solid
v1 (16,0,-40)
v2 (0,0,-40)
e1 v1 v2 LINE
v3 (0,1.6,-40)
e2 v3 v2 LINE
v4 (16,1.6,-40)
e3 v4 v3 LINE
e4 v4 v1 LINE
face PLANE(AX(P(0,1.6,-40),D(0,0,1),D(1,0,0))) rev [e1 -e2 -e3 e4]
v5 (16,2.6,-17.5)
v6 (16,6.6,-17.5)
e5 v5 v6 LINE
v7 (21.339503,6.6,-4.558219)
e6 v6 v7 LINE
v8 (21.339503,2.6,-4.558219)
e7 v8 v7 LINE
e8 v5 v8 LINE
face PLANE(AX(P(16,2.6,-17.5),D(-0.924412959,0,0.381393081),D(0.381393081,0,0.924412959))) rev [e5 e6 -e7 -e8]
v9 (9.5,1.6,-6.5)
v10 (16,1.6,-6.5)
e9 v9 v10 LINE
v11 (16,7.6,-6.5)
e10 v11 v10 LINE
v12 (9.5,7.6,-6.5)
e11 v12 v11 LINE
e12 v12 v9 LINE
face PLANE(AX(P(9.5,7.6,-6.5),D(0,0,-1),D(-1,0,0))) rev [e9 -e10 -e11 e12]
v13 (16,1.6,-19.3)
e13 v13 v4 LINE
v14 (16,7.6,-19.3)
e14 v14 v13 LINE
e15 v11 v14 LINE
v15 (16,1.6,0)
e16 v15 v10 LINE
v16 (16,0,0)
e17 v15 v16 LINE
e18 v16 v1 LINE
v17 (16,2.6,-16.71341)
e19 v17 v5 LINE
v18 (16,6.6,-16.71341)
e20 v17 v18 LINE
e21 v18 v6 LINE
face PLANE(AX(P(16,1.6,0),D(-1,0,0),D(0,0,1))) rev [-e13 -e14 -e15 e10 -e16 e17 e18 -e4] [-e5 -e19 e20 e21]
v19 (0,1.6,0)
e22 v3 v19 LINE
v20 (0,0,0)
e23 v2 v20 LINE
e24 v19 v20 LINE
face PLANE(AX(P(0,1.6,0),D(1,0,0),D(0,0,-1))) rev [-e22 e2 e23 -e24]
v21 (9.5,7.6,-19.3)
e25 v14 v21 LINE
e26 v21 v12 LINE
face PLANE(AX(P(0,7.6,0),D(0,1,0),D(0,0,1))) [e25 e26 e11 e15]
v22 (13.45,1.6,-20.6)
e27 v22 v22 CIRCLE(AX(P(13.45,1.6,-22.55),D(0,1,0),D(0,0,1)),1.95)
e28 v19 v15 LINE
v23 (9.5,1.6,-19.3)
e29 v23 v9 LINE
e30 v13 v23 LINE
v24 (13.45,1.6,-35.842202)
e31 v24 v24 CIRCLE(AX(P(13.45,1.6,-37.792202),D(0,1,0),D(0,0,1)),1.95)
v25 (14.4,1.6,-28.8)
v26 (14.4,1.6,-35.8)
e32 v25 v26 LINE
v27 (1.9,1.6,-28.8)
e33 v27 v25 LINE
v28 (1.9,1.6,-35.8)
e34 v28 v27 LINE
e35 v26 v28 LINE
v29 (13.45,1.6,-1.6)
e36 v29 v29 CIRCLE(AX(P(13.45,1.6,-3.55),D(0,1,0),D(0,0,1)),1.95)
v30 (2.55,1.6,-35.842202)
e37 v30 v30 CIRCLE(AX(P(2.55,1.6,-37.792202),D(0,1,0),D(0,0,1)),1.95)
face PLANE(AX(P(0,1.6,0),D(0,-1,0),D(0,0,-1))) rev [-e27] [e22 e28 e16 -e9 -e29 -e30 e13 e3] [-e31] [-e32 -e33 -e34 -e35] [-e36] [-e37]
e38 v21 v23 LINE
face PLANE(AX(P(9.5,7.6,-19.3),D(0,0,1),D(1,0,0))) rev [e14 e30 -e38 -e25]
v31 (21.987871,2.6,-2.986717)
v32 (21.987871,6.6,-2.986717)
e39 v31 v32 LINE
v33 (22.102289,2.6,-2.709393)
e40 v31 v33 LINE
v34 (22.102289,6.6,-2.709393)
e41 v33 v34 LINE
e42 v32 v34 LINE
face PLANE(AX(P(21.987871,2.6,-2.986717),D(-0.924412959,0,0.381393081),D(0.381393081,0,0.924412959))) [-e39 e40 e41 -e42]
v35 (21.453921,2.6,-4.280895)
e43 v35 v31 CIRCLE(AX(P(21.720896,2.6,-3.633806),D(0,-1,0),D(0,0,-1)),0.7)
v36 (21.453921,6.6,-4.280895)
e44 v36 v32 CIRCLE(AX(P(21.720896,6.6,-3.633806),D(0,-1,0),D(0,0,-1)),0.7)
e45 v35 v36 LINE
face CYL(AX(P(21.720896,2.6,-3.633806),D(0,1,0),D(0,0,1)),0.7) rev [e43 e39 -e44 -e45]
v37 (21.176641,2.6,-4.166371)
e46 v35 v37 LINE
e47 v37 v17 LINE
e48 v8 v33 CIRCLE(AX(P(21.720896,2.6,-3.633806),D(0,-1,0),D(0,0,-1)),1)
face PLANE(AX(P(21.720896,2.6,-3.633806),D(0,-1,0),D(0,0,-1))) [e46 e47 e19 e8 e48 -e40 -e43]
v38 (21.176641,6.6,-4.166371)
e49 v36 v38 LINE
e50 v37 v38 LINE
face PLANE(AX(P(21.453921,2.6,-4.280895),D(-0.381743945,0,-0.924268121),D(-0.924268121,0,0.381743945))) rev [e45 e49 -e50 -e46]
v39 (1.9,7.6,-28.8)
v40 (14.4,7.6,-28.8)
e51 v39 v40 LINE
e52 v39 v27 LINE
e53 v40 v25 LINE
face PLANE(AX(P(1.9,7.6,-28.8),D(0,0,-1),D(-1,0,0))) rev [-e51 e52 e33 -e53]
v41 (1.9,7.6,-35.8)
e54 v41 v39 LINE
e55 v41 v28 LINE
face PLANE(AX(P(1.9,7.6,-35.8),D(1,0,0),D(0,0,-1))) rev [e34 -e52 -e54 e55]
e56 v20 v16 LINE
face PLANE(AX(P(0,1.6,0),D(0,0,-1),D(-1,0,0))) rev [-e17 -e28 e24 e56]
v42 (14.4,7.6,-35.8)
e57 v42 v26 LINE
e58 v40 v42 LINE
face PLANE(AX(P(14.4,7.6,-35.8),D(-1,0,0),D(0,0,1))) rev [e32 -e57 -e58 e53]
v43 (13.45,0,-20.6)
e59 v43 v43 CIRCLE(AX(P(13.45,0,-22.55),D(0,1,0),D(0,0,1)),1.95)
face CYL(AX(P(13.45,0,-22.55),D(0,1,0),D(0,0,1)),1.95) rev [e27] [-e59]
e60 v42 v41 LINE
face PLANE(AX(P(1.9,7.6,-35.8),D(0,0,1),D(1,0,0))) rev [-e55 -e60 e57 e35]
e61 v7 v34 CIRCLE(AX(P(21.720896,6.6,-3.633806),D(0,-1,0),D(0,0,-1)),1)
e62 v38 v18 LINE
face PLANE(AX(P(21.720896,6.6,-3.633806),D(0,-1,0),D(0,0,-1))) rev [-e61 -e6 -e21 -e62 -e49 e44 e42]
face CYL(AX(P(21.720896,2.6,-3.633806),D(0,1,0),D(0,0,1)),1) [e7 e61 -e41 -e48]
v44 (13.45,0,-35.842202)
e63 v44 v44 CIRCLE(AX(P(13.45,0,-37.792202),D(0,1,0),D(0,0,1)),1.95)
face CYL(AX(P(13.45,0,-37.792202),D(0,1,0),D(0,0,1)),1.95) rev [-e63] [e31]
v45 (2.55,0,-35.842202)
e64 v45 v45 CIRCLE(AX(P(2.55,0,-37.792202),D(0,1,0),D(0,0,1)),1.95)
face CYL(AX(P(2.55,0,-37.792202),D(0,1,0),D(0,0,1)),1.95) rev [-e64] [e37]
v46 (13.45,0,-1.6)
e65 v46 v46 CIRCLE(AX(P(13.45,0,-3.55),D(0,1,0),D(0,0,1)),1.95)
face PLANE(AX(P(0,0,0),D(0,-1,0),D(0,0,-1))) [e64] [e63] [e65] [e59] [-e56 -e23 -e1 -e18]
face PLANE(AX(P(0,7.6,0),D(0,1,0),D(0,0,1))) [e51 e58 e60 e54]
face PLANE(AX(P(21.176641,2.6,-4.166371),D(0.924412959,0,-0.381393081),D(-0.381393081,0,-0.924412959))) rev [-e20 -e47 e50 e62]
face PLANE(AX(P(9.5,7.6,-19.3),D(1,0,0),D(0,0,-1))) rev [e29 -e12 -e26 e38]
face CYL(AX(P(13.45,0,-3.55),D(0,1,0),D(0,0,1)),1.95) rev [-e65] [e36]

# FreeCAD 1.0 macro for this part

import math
import FreeCAD as App
import Part
import Sketcher
Q = App.Units.Quantity

doc = App.newDocument("Part")
params = doc.addObject("Spreadsheet::Sheet", "Params")
for row, (alias, value) in enumerate([
    ("sketch1_width", "16 mm"),
    ("sketch1_height", "40 mm"),
    ("pad1_length", "1.6 mm"),
    ("sketch2_diameter", "3.9 mm"),
    ("pocket1_length", "1.6 mm"),
    ("sketch3_height", "7 mm"),
    ("sketch3_width", "12.5 mm"),
    ("sketch3_width2", "6.5 mm"),
    ("sketch3_height2", "12.8 mm"),
    ("pad2_length", "6 mm"),
    ("sketch4_radius", "1 mm"),
    ("sketch4_radius2", "0.7 mm"),
    ("sketch4_length", "14 mm"),
    ("pad3_length", "4 mm"),
], start=1):
    params.set(f"A{row}", alias)
    params.set(f"B{row}", "=" + value)
    params.setAlias(f"B{row}", alias)

body = doc.addObject("PartDesign::Body", "Body")

# Sketch on XZ plane
sketch1 = doc.addObject("Sketcher::SketchObject", "Sketch")
body.addObject(sketch1)
sketch1.AttachmentSupport = (doc.XZ_Plane, [""])
sketch1.MapMode = "FlatFace"
sketch1.addGeometry([
    Part.LineSegment(App.Vector(0, -40, 0), App.Vector(0, 0, 0)),
    Part.LineSegment(App.Vector(0, 0, 0), App.Vector(16, 0, 0)),
    Part.LineSegment(App.Vector(16, 0, 0), App.Vector(16, -40, 0)),
    Part.LineSegment(App.Vector(16, -40, 0), App.Vector(0, -40, 0)),
], False)
sketch1.addConstraint([
    Sketcher.Constraint("Coincident", 0, 2, 1, 1),
    Sketcher.Constraint("Coincident", 1, 2, 2, 1),
    Sketcher.Constraint("Coincident", 2, 2, 3, 1),
    Sketcher.Constraint("Coincident", 3, 2, 0, 1),
    Sketcher.Constraint("Vertical", 0),
    Sketcher.Constraint("Horizontal", 1),
    Sketcher.Constraint("Vertical", 2),
    Sketcher.Constraint("Horizontal", 3),
    Sketcher.Constraint("Coincident", 0, 2, -1, 1),
    Sketcher.Constraint("DistanceX", 1, 1, 1, 2, 16.0),
    Sketcher.Constraint("DistanceY", 0, 1, 0, 2, 40.0),
])
sketch1.setExpression("Constraints[9]", "Params.sketch1_width")
sketch1.setExpression("Constraints[10]", "Params.sketch1_height")
pad1 = doc.addObject("PartDesign::Pad", "Pad")
body.addObject(pad1)
pad1.Profile = sketch1
pad1.setExpression("Length", "Params.pad1_length")
pad1.Reversed = True

# Sketch on XZ plane
sketch2 = doc.addObject("Sketcher::SketchObject", "Sketch001")
body.addObject(sketch2)
sketch2.AttachmentSupport = (doc.XZ_Plane, [""])
sketch2.MapMode = "FlatFace"
sketch2.AttachmentOffset = App.Placement(App.Vector(0, 0, -1.6), App.Rotation())
sketch2.addGeometry([
    Part.Circle(App.Vector(2.5, -37.8, 0), App.Vector(0, 0, 1), 1.9),
    Part.Circle(App.Vector(13.4, -37.8, 0), App.Vector(0, 0, 1), 1.9),
    Part.Circle(App.Vector(13.4, -3.5, 0), App.Vector(0, 0, 1), 1.9),
    Part.Circle(App.Vector(13.4, -22.6, 0), App.Vector(0, 0, 1), 1.9),
], False)
sketch2.addConstraint([
    Sketcher.Constraint("Equal", 0, 1),
    Sketcher.Constraint("Equal", 1, 2),
    Sketcher.Constraint("Equal", 2, 3),
    Sketcher.Constraint("Horizontal", 0, 3, 1, 3),
    Sketcher.Constraint("Vertical", 1, 3, 2, 3),
    Sketcher.Constraint("Vertical", 2, 3, 3, 3),
    Sketcher.Constraint("Diameter", 0, 3.9),
    Sketcher.Constraint("DistanceY", 3, 3, 2, 3, 19.0),
    Sketcher.Constraint("DistanceX", 0, 3, 1, 3, 10.9),
    Sketcher.Constraint("DistanceX", -1, 1, 0, 3, 2.55),
    Sketcher.Constraint("DistanceY", 2, 3, -1, 1, 3.55),
    Sketcher.Constraint("DistanceY", 0, 3, -1, 1, 37.792202),
])
sketch2.setExpression("Constraints[6]", "Params.sketch2_diameter")
pocket1 = doc.addObject("PartDesign::Pocket", "Pocket")
body.addObject(pocket1)
pocket1.Profile = sketch2
pocket1.setExpression("Length", "Params.pocket1_length")
pocket1.Reversed = True

# Sketch on XZ plane
sketch3 = doc.addObject("Sketcher::SketchObject", "Sketch002")
body.addObject(sketch3)
sketch3.AttachmentSupport = (doc.XZ_Plane, [""])
sketch3.MapMode = "FlatFace"
sketch3.AttachmentOffset = App.Placement(App.Vector(0, 0, -1.6), App.Rotation())
sketch3.addGeometry([
    Part.LineSegment(App.Vector(2, -36, 0), App.Vector(2, -29, 0)),  # 0
    Part.LineSegment(App.Vector(2, -29, 0), App.Vector(14, -29, 0)),  # 1
    Part.LineSegment(App.Vector(14, -29, 0), App.Vector(14, -36, 0)),  # 2
    Part.LineSegment(App.Vector(14, -36, 0), App.Vector(2, -36, 0)),  # 3
    Part.LineSegment(App.Vector(10, -19, 0), App.Vector(10, -6, 0)),  # 4
    Part.LineSegment(App.Vector(10, -6, 0), App.Vector(16, -6, 0)),  # 5
    Part.LineSegment(App.Vector(16, -6, 0), App.Vector(16, -19, 0)),  # 6
    Part.LineSegment(App.Vector(16, -19, 0), App.Vector(10, -19, 0)),  # 7
], False)
sketch3.addConstraint([
    Sketcher.Constraint("Coincident", 0, 2, 1, 1),
    Sketcher.Constraint("Coincident", 1, 2, 2, 1),
    Sketcher.Constraint("Coincident", 2, 2, 3, 1),
    Sketcher.Constraint("Coincident", 3, 2, 0, 1),
    Sketcher.Constraint("Coincident", 4, 2, 5, 1),
    Sketcher.Constraint("Coincident", 5, 2, 6, 1),
    Sketcher.Constraint("Coincident", 6, 2, 7, 1),
    Sketcher.Constraint("Coincident", 7, 2, 4, 1),
    Sketcher.Constraint("Vertical", 0),
    Sketcher.Constraint("Horizontal", 1),
    Sketcher.Constraint("Vertical", 2),
    Sketcher.Constraint("Horizontal", 3),
    Sketcher.Constraint("Vertical", 4),
    Sketcher.Constraint("Horizontal", 5),
    Sketcher.Constraint("Vertical", 6),
    Sketcher.Constraint("Horizontal", 7),
    Sketcher.Constraint("DistanceY", 0, 1, 0, 2, 7.0),
    Sketcher.Constraint("DistanceX", 1, 1, 1, 2, 12.5),
    Sketcher.Constraint("DistanceX", 5, 1, 5, 2, 6.5),
    Sketcher.Constraint("DistanceY", 4, 1, 4, 2, 12.8),
    Sketcher.Constraint("DistanceX", -1, 1, 5, 2, 16.0),
    Sketcher.Constraint("DistanceX", -1, 1, 0, 2, 1.9),
    Sketcher.Constraint("DistanceY", 0, 2, -1, 1, 28.8),
    Sketcher.Constraint("DistanceY", 4, 2, -1, 1, 6.5),
])
sketch3.setExpression("Constraints[16]", "Params.sketch3_height")
sketch3.setExpression("Constraints[17]", "Params.sketch3_width")
sketch3.setExpression("Constraints[18]", "Params.sketch3_width2")
sketch3.setExpression("Constraints[19]", "Params.sketch3_height2")
pad2 = doc.addObject("PartDesign::Pad", "Pad001")
body.addObject(pad2)
pad2.Profile = sketch3
pad2.setExpression("Length", "Params.pad2_length")
pad2.Reversed = True

# Sketch on XZ plane
sketch4 = doc.addObject("Sketcher::SketchObject", "Sketch003")
body.addObject(sketch4)
sketch4.AttachmentSupport = (doc.XZ_Plane, [""])
sketch4.MapMode = "FlatFace"
sketch4.AttachmentOffset = App.Placement(App.Vector(0, 0, -6.6), App.Rotation())
sketch4.addGeometry([
    Part.LineSegment(App.Vector(16, -17.5, 0), App.Vector(21.34, -4.56, 0)),  # 0
    Part.ArcOfCircle(Part.Circle(App.Vector(21.72, -3.63, 0), App.Vector(0, 0, 1), 1), math.radians(-112), math.radians(68)),  # 1
    Part.LineSegment(App.Vector(22.1, -2.71, 0), App.Vector(21.99, -2.99, 0)),  # 2
    Part.ArcOfCircle(Part.Circle(App.Vector(21.72, -3.63, 0), App.Vector(0, 0, 1), 0.7), math.radians(-112), math.radians(68)),  # 3
    Part.LineSegment(App.Vector(21.45, -4.28, 0), App.Vector(21.18, -4.17, 0)),  # 4
    Part.LineSegment(App.Vector(21.18, -4.17, 0), App.Vector(16, -16.71, 0)),  # 5
    Part.LineSegment(App.Vector(16, -16.71, 0), App.Vector(16, -17.5, 0)),  # 6
], False)
sketch4.addConstraint([
    Sketcher.Constraint("Coincident", 0, 2, 1, 1),
    Sketcher.Constraint("Coincident", 1, 2, 2, 1),
    Sketcher.Constraint("Coincident", 2, 2, 3, 2),
    Sketcher.Constraint("Coincident", 3, 1, 4, 1),
    Sketcher.Constraint("Coincident", 4, 2, 5, 1),
    Sketcher.Constraint("Coincident", 5, 2, 6, 1),
    Sketcher.Constraint("Coincident", 6, 2, 0, 1),
    Sketcher.Constraint("Vertical", 6),
    Sketcher.Constraint("Coincident", 3, 3, 1, 3),
    Sketcher.Constraint("Parallel", 0, 2),
    Sketcher.Constraint("Parallel", 2, 5),
    Sketcher.Constraint("Equal", 2, 4),
    Sketcher.Constraint("Radius", 1, 1.0),
    Sketcher.Constraint("Radius", 3, 0.7),
    Sketcher.Constraint("Distance", 0, 14.0),
    Sketcher.Constraint("DistanceX", -1, 1, 5, 2, 16.0),
    Sketcher.Constraint("DistanceY", 6, 2, -1, 1, 17.5),
    Sketcher.Constraint("Angle", 0, Q("67.58 deg")),
    Sketcher.Constraint("DistanceY", 6, 2, 6, 1, 0.78659),
    Sketcher.Constraint("Distance", 5, 13.57298),
    Sketcher.Constraint("DistanceX", -1, 1, 1, 2, 22.102289),
    Sketcher.Constraint("DistanceY", 1, 3, 2, 2, 0.647089),
])
sketch4.setExpression("Constraints[12]", "Params.sketch4_radius")
sketch4.setExpression("Constraints[13]", "Params.sketch4_radius2")
sketch4.setExpression("Constraints[14]", "Params.sketch4_length")
pad3 = doc.addObject("PartDesign::Pad", "Pad002")
body.addObject(pad3)
pad3.Profile = sketch4
pad3.setExpression("Length", "Params.pad3_length")

doc.recompute()
